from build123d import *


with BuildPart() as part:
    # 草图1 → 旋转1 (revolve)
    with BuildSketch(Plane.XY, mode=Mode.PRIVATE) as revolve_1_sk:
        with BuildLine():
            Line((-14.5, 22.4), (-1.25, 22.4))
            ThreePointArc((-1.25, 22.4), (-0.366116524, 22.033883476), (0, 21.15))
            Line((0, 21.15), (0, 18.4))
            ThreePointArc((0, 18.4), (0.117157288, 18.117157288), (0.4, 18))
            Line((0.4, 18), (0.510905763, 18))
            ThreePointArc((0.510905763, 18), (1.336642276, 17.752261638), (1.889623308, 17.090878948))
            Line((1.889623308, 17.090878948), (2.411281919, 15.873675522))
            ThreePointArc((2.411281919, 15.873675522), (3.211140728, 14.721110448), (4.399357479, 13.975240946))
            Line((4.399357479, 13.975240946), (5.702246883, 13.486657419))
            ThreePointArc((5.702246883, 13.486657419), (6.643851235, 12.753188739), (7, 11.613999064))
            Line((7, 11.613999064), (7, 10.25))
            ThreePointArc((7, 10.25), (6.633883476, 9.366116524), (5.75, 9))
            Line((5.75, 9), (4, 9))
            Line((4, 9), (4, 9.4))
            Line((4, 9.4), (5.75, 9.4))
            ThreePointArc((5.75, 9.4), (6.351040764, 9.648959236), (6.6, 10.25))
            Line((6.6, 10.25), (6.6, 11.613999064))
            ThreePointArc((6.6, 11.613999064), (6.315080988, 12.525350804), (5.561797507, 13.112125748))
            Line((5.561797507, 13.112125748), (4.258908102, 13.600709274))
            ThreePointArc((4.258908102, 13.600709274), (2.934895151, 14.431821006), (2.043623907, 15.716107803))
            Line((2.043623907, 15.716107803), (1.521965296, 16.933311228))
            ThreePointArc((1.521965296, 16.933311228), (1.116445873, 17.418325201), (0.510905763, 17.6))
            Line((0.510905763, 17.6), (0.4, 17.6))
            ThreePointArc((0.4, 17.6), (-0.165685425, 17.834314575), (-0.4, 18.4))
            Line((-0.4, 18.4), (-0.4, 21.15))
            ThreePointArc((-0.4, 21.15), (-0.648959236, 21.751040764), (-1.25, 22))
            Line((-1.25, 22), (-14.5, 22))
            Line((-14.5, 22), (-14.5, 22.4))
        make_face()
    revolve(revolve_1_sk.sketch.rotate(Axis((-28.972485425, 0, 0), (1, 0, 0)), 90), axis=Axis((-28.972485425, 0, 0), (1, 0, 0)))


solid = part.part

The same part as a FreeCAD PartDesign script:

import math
import FreeCAD as App
import Part
import Sketcher

V = App.Vector
Q = App.Units.Quantity

doc = App.newDocument("Part")
body = doc.addObject("PartDesign::Body", "Body")

sketch1 = doc.addObject("Sketcher::SketchObject", "Sketch")
body.addObject(sketch1)
sketch1.AttachmentSupport = (doc.XY_Plane, [""])
sketch1.MapMode = "FlatFace"
sketch1.addGeometry([
    Part.LineSegment(V(-1.25, 22.4, 0), V(-14.5, 22.4, 0)),
    Part.LineSegment(V(-14.5, 22.4, 0), V(-14.5, 22, 0)),
    Part.LineSegment(V(-14.5, 22, 0), V(-1.25, 22, 0)),
    Part.ArcOfCircle(Part.Circle(V(-1.25, 21.15, 0), V(0, 0, 1), 0.85), math.radians(0), math.radians(90)),
    Part.LineSegment(V(-0.4, 21.15, 0), V(-0.4, 18.4, 0)),
    Part.ArcOfCircle(Part.Circle(V(0.4, 18.4, 0), V(0, 0, 1), 0.8), math.radians(180), math.radians(270)),
    Part.LineSegment(V(0.4, 17.6, 0), V(0.51, 17.6, 0)),
    Part.ArcOfCircle(Part.Circle(V(0.51, 16.5, 0), V(0, 0, 1), 1.1), math.radians(23), math.radians(90)),
    Part.LineSegment(V(1.52, 16.93, 0), V(2.04, 15.72, 0)),
    Part.ArcOfCircle(Part.Circle(V(5.63, 17.25, 0), V(0, 0, 1), 3.9), math.radians(-157), math.radians(-111)),
    Part.LineSegment(V(4.26, 13.6, 0), V(5.56, 13.11, 0)),
    Part.ArcOfCircle(Part.Circle(V(5, 11.61, 0), V(0, 0, 1), 1.6), math.radians(0), math.radians(69)),
    Part.LineSegment(V(6.6, 11.61, 0), V(6.6, 10.25, 0)),
    Part.ArcOfCircle(Part.Circle(V(5.75, 10.25, 0), V(0, 0, 1), 0.85), math.radians(-90), math.radians(0)),
    Part.LineSegment(V(5.75, 9.4, 0), V(4, 9.4, 0)),
    Part.LineSegment(V(4, 9.4, 0), V(4, 9, 0)),
    Part.LineSegment(V(4, 9, 0), V(5.75, 9, 0)),
    Part.ArcOfCircle(Part.Circle(V(5.75, 10.25, 0), V(0, 0, 1), 1.25), math.radians(-90), math.radians(0)),
    Part.LineSegment(V(7, 10.25, 0), V(7, 11.61, 0)),
    Part.ArcOfCircle(Part.Circle(V(5, 11.61, 0), V(0, 0, 1), 2), math.radians(0), math.radians(69)),
    Part.LineSegment(V(5.7, 13.49, 0), V(4.4, 13.98, 0)),
    Part.ArcOfCircle(Part.Circle(V(5.63, 17.25, 0), V(0, 0, 1), 3.5), math.radians(-157), math.radians(-111)),
    Part.LineSegment(V(2.41, 15.87, 0), V(1.89, 17.09, 0)),
    Part.ArcOfCircle(Part.Circle(V(0.51, 16.5, 0), V(0, 0, 1), 1.5), math.radians(23), math.radians(90)),
    Part.LineSegment(V(0.51, 18, 0), V(0.4, 18, 0)),
    Part.ArcOfCircle(Part.Circle(V(0.4, 18.4, 0), V(0, 0, 1), 0.4), math.radians(-180), math.radians(-90)),
    Part.LineSegment(V(0, 18.4, 0), V(0, 21.15, 0)),
    Part.ArcOfCircle(Part.Circle(V(-1.25, 21.15, 0), V(0, 0, 1), 1.25), math.radians(0), math.radians(90)),
], False)
sketch1.addConstraint([
    Sketcher.Constraint("Coincident", 0, 2, 1, 1),
    Sketcher.Constraint("Coincident", 1, 2, 2, 1),
    Sketcher.Constraint("Tangent", 2, 2, 3, 2),
    Sketcher.Constraint("Tangent", 3, 1, 4, 1),
    Sketcher.Constraint("Tangent", 4, 2, 5, 1),
    Sketcher.Constraint("Tangent", 5, 2, 6, 1),
    Sketcher.Constraint("Tangent", 6, 2, 7, 2),
    Sketcher.Constraint("Tangent", 7, 1, 8, 1),
    Sketcher.Constraint("Tangent", 8, 2, 9, 1),
    Sketcher.Constraint("Tangent", 9, 2, 10, 1),
    Sketcher.Constraint("Tangent", 10, 2, 11, 2),
    Sketcher.Constraint("Tangent", 11, 1, 12, 1),
    Sketcher.Constraint("Tangent", 12, 2, 13, 2),
    Sketcher.Constraint("Tangent", 13, 1, 14, 1),
    Sketcher.Constraint("Coincident", 14, 2, 15, 1),
    Sketcher.Constraint("Coincident", 15, 2, 16, 1),
    Sketcher.Constraint("Tangent", 16, 2, 17, 1),
    Sketcher.Constraint("Tangent", 17, 2, 18, 1),
    Sketcher.Constraint("Tangent", 18, 2, 19, 1),
    Sketcher.Constraint("Tangent", 19, 2, 20, 1),
    Sketcher.Constraint("Tangent", 20, 2, 21, 2),
    Sketcher.Constraint("Tangent", 21, 1, 22, 1),
    Sketcher.Constraint("Tangent", 22, 2, 23, 1),
    Sketcher.Constraint("Tangent", 23, 2, 24, 1),
    Sketcher.Constraint("Tangent", 24, 2, 25, 2),
    Sketcher.Constraint("Tangent", 25, 1, 26, 1),
    Sketcher.Constraint("Tangent", 26, 2, 27, 1),
    Sketcher.Constraint("Tangent", 27, 2, 0, 1),
    Sketcher.Constraint("Horizontal", 0),
    Sketcher.Constraint("Vertical", 1),
    Sketcher.Constraint("Horizontal", 2),
    Sketcher.Constraint("Vertical", 4),
    Sketcher.Constraint("Horizontal", 6),
    Sketcher.Constraint("Vertical", 12),
    Sketcher.Constraint("Horizontal", 14),
    Sketcher.Constraint("Vertical", 15),
    Sketcher.Constraint("Horizontal", 16),
    Sketcher.Constraint("Vertical", 18),
    Sketcher.Constraint("Horizontal", 24),
    Sketcher.Constraint("Vertical", 26),
    Sketcher.Constraint("Coincident", 17, 3, 13, 3),
    Sketcher.Constraint("Coincident", 19, 3, 11, 3),
    Sketcher.Constraint("Coincident", 21, 3, 9, 3),
    Sketcher.Constraint("Coincident", 23, 3, 7, 3),
    Sketcher.Constraint("Coincident", 25, 3, 5, 3),
    Sketcher.Constraint("Coincident", 27, 3, 3, 3),
    Sketcher.Constraint("Equal", 3, 13),
    Sketcher.Constraint("Equal", 17, 27),
    Sketcher.Constraint("PointOnObject", 25, 1, -2),
    Sketcher.Constraint("Parallel", 10, 20),
    Sketcher.Constraint("Radius", 19, Q("2 mm")),
    Sketcher.Constraint("Radius", 5, Q("0.8 mm")),
    Sketcher.Constraint("Radius", 7, Q("1.1 mm")),
    Sketcher.Constraint("Radius", 9, Q("3.9 mm")),
    Sketcher.Constraint("Radius", 11, Q("1.6 mm")),
    Sketcher.Constraint("Radius", 3, Q("0.85 mm")),
    Sketcher.Constraint("DistanceX", -1, 1, 11, 3, Q("5 mm")),
    Sketcher.Constraint("DistanceY", -1, 1, 1, 2, Q("22 mm")),
    Sketcher.Constraint("DistanceX", -1, 1, 14, 2, Q("4 mm")),
    Sketcher.Constraint("DistanceY", -1, 1, 15, 2, Q("9 mm")),
    Sketcher.Constraint("DistanceY", -1, 1, 23, 2, Q("18 mm")),
    Sketcher.Constraint("DistanceX", 0, 2, 0, 1, Q("13.25 mm")),
    Sketcher.Constraint("DistanceY", 12, 2, 12, 1, Q("1.363999 mm")),
    Sketcher.Constraint("DistanceX", 22, 2, 8, 2, Q("0.154001 mm")),
    Sketcher.Constraint("DistanceY", 9, 2, 8, 2, Q("2.115399 mm")),
    Sketcher.Constraint("DistanceX", 6, 1, 6, 2, Q("0.110906 mm")),
])
revolution = doc.addObject("PartDesign::Revolution", "Revolution")
body.addObject(revolution)
revolution.Profile = sketch1
revolution.ReferenceAxis = (sketch1, ["H_Axis"])
revolution.Angle = 360

doc.recompute()
